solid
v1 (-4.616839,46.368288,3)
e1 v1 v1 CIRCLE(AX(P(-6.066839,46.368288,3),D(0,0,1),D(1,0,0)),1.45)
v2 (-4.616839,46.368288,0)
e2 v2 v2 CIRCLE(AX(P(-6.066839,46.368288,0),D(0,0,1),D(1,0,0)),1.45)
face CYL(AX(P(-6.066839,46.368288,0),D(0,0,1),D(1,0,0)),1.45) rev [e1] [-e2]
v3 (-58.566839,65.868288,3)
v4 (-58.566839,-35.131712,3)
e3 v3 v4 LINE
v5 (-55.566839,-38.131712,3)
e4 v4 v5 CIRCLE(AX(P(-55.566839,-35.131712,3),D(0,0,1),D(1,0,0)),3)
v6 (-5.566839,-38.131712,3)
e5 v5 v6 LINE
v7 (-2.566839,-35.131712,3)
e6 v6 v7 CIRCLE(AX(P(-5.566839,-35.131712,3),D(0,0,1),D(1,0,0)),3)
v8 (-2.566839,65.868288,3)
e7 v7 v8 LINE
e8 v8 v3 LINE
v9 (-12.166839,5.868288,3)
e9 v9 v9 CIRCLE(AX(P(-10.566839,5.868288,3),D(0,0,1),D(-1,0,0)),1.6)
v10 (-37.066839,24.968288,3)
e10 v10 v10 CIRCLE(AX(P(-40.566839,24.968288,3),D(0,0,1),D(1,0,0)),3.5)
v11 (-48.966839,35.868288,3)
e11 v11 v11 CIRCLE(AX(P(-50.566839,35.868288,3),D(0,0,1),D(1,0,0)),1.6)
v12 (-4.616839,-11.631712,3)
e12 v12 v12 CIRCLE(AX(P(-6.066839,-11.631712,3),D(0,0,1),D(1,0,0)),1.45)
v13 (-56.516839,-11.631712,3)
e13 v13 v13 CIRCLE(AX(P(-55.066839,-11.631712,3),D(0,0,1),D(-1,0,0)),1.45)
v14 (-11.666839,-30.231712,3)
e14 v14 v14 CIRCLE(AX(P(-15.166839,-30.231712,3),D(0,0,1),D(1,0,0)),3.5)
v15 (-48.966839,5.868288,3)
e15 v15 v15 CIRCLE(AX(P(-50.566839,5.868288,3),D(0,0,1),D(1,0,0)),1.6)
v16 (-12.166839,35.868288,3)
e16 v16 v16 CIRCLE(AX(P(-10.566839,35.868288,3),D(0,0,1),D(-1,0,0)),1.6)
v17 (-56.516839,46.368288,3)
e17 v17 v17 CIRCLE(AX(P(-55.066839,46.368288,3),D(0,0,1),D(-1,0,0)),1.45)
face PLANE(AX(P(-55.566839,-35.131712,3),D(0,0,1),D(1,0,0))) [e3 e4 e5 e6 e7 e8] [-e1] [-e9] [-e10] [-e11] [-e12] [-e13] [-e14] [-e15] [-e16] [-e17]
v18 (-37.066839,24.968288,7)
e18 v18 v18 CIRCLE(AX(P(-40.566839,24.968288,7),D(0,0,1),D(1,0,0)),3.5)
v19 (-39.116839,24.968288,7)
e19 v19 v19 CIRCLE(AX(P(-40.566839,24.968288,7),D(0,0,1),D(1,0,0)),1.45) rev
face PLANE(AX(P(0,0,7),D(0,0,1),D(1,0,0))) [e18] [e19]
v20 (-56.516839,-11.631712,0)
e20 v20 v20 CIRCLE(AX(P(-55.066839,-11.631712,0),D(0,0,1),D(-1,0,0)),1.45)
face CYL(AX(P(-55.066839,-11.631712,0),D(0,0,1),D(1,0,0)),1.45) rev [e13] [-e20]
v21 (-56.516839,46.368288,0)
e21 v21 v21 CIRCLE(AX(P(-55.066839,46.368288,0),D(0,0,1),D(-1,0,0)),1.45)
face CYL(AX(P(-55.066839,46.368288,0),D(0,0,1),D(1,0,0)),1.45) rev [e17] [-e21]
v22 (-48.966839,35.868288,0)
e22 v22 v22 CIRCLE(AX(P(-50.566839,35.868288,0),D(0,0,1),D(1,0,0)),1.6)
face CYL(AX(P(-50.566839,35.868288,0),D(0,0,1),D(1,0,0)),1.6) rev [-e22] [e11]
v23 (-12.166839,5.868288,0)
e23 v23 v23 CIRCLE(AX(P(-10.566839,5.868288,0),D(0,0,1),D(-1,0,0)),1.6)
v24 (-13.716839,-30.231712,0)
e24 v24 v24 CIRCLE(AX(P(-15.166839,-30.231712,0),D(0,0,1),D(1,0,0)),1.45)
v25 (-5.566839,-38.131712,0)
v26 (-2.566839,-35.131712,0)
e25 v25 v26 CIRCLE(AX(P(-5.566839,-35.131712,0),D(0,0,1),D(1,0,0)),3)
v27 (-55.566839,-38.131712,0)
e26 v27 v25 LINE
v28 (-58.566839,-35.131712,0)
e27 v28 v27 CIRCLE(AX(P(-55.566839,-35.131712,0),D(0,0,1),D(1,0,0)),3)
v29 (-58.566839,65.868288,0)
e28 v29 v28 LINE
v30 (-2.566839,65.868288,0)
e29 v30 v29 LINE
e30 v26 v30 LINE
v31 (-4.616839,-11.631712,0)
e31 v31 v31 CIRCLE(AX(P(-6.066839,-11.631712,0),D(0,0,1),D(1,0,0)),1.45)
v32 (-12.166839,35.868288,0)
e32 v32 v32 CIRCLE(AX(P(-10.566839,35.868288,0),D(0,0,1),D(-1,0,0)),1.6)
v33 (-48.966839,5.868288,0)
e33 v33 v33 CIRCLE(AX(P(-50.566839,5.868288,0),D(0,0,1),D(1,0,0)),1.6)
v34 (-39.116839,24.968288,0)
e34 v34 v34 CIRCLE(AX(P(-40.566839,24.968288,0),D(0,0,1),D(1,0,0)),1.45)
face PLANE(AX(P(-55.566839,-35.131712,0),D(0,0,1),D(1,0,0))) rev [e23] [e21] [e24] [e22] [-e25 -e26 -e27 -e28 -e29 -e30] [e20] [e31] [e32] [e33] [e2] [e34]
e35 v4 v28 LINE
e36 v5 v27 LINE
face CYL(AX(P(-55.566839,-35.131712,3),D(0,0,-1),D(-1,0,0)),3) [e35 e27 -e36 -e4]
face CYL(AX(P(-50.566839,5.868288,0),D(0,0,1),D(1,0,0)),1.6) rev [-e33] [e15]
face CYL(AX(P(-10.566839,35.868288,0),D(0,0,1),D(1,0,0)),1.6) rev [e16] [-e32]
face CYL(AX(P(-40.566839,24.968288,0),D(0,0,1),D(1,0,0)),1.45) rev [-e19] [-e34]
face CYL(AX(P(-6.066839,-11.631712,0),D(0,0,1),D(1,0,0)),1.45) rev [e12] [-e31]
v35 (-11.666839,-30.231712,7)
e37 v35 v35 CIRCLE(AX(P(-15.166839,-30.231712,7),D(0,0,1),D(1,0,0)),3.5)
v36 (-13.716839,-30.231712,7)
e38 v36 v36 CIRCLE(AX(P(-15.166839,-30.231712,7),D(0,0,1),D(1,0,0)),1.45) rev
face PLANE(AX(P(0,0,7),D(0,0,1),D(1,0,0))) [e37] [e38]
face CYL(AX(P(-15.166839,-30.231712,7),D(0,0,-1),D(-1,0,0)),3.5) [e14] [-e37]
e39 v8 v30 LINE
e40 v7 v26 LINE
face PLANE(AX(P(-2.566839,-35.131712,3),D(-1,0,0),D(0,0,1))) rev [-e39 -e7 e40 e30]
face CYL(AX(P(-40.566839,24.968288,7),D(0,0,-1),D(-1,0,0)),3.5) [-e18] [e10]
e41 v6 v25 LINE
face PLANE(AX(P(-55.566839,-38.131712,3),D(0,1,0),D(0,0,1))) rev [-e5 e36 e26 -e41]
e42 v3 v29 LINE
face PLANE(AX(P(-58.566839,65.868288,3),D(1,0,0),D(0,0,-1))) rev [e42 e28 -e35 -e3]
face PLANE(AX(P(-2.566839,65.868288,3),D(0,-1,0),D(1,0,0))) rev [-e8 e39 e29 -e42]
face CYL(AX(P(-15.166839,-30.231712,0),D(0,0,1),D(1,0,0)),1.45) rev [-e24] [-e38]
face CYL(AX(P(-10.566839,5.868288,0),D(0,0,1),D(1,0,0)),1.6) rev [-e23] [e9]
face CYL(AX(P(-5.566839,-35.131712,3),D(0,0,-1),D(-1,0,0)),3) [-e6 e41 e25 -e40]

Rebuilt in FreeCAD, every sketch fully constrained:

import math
import FreeCAD as App
import Part
import Sketcher
from FreeCAD import Vector
Q = App.Units.Quantity

doc = App.newDocument("Part")
params = doc.addObject("Spreadsheet::Sheet", "Params")
for row, (alias, value) in enumerate([
    ("sketch1_radius", "3 mm"),
    ("sketch1_width", "50 mm"),
    ("sketch1_height", "101 mm"),
    ("pad1_length", "3 mm"),
    ("sketch2_diameter", "3.2 mm"),
    ("sketch2_diameter2", "2.9 mm"),
    ("sketch3_diameter", "7 mm"),
    ("sketch3_diameter2", "2.9 mm"),
    ("pad2_length", "4 mm"),
], start=1):
    params.set(f"A{row}", alias)
    params.set(f"B{row}", "=" + value)
    params.setAlias(f"B{row}", alias)

body = doc.addObject("PartDesign::Body", "Body")

# Sketch on XY plane
sketch1 = body.newObject("Sketcher::SketchObject", "Sketch")
sketch1.AttachmentSupport = (doc.getObject("XY_Plane"), [""])
sketch1.MapMode = "FlatFace"
sketch1.addGeometry([
    Part.LineSegment(Vector(-55.6, -38.1, 0), Vector(-5.6, -38.1, 0)),  # 0
    Part.ArcOfCircle(Part.Circle(Vector(-5.6, -35.1, 0), Vector(0, 0, 1), 3), math.radians(-90), math.radians(0)),  # 1
    Part.LineSegment(Vector(-2.6, -35.1, 0), Vector(-2.6, 65.9, 0)),  # 2
    Part.LineSegment(Vector(-2.6, 65.9, 0), Vector(-58.6, 65.9, 0)),  # 3
    Part.LineSegment(Vector(-58.6, 65.9, 0), Vector(-58.6, -35.1, 0)),  # 4
    Part.ArcOfCircle(Part.Circle(Vector(-55.6, -35.1, 0), Vector(0, 0, 1), 3), math.radians(180), math.radians(270)),  # 5
], False)
sketch1.addConstraint([
    Sketcher.Constraint("Tangent", 0, 2, 1, 1),
    Sketcher.Constraint("Tangent", 1, 2, 2, 1),
    Sketcher.Constraint("Coincident", 2, 2, 3, 1),
    Sketcher.Constraint("Coincident", 3, 2, 4, 1),
    Sketcher.Constraint("Tangent", 4, 2, 5, 1),
    Sketcher.Constraint("Tangent", 5, 2, 0, 1),
    Sketcher.Constraint("Horizontal", 0),
    Sketcher.Constraint("Vertical", 2),
    Sketcher.Constraint("Horizontal", 3),
    Sketcher.Constraint("Vertical", 4),
    Sketcher.Constraint("Equal", 1, 5),
    Sketcher.Constraint("Radius", 1, Q("3 mm")),
    Sketcher.Constraint("DistanceX", 0, 1, 0, 2, Q("50 mm")),
    Sketcher.Constraint("DistanceY", 2, 1, 2, 2, Q("101 mm")),
    Sketcher.Constraint("DistanceX", 1, 3, -1, 1, Q("5.566839 mm")),
    Sketcher.Constraint("DistanceY", 1, 3, -1, 1, Q("35.131712 mm")),
])
sketch1.setExpression("Constraints[11]", "Params.sketch1_radius")
sketch1.setExpression("Constraints[12]", "Params.sketch1_width")
sketch1.setExpression("Constraints[13]", "Params.sketch1_height")
pad1 = body.newObject("PartDesign::Pad", "Pad")
pad1.Profile = sketch1
pad1.setExpression("Length", "Params.pad1_length")

# Sketch on XY plane
sketch2 = body.newObject("Sketcher::SketchObject", "Sketch001")
sketch2.AttachmentSupport = (doc.getObject("XY_Plane"), [""])
sketch2.MapMode = "FlatFace"
sketch2.AttachmentOffset = App.Placement(Vector(0, 0, 3), App.Rotation())
sketch2.addGeometry([
    Part.Circle(Vector(-50.6, 35.9, 0), Vector(0, 0, 1), 1.6),  # 0
    Part.Circle(Vector(-50.6, 5.9, 0), Vector(0, 0, 1), 1.6),  # 1
    Part.Circle(Vector(-10.6, 5.9, 0), Vector(0, 0, 1), 1.6),  # 2
    Part.Circle(Vector(-10.6, 35.9, 0), Vector(0, 0, 1), 1.6),  # 3
    Part.Circle(Vector(-40.6, 25, 0), Vector(0, 0, 1), 1.4),  # 4
    Part.Circle(Vector(-15.2, -30.2, 0), Vector(0, 0, 1), 1.4),  # 5
    Part.Circle(Vector(-6.1, 46.4, 0), Vector(0, 0, 1), 1.4),  # 6
    Part.Circle(Vector(-6.1, -11.6, 0), Vector(0, 0, 1), 1.4),  # 7
    Part.Circle(Vector(-55.1, -11.6, 0), Vector(0, 0, 1), 1.4),  # 8
    Part.Circle(Vector(-55.1, 46.4, 0), Vector(0, 0, 1), 1.4),  # 9
], False)
sketch2.addConstraint([
    Sketcher.Constraint("Equal", 0, 1),
    Sketcher.Constraint("Equal", 1, 2),
    Sketcher.Constraint("Equal", 2, 3),
    Sketcher.Constraint("Equal", 4, 5),
    Sketcher.Constraint("Equal", 5, 6),
    Sketcher.Constraint("Equal", 6, 7),
    Sketcher.Constraint("Equal", 7, 8),
    Sketcher.Constraint("Equal", 8, 9),
    Sketcher.Constraint("Horizontal", 1, 3, 2, 3),
    Sketcher.Constraint("Horizontal", 0, 3, 3, 3),
    Sketcher.Constraint("Horizontal", 7, 3, 8, 3),
    Sketcher.Constraint("Horizontal", 6, 3, 9, 3),
    Sketcher.Constraint("Vertical", 0, 3, 1, 3),
    Sketcher.Constraint("Vertical", 2, 3, 3, 3),
    Sketcher.Constraint("Vertical", 6, 3, 7, 3),
    Sketcher.Constraint("Vertical", 8, 3, 9, 3),
    Sketcher.Constraint("Diameter", 0, Q("3.2 mm")),
    Sketcher.Constraint("Diameter", 4, Q("2.9 mm")),
    Sketcher.Constraint("DistanceY", 1, 3, 0, 3, Q("30 mm")),
    Sketcher.Constraint("DistanceX", 1, 3, 2, 3, Q("40 mm")),
    Sketcher.Constraint("DistanceX", 0, 3, 4, 3, Q("10 mm")),
    Sketcher.Constraint("DistanceX", 9, 3, 6, 3, Q("49 mm")),
    Sketcher.Constraint("DistanceY", 4, 3, 0, 3, Q("10.9 mm")),
    Sketcher.Constraint("DistanceX", 5, 3, 2, 3, Q("4.6 mm")),
    Sketcher.Constraint("DistanceY", 5, 3, 2, 3, Q("36.1 mm")),
    Sketcher.Constraint("DistanceX", 3, 3, 6, 3, Q("4.5 mm")),
    Sketcher.Constraint("DistanceY", 3, 3, 6, 3, Q("10.5 mm")),
    Sketcher.Constraint("DistanceY", 7, 3, 2, 3, Q("17.5 mm")),
    Sketcher.Constraint("DistanceX", 0, 3, -1, 1, Q("50.566839 mm")),
    Sketcher.Constraint("DistanceY", -1, 1, 0, 3, Q("35.868288 mm")),
])
sketch2.setExpression("Constraints[16]", "Params.sketch2_diameter")
sketch2.setExpression("Constraints[17]", "Params.sketch2_diameter2")
pocket1 = body.newObject("PartDesign::Pocket", "Pocket")
pocket1.Profile = sketch2
pocket1.Type = "ThroughAll"

# Sketch on XY plane
sketch3 = body.newObject("Sketcher::SketchObject", "Sketch002")
sketch3.AttachmentSupport = (doc.getObject("XY_Plane"), [""])
sketch3.MapMode = "FlatFace"
sketch3.AttachmentOffset = App.Placement(Vector(0, 0, 3), App.Rotation())
sketch3.addGeometry([
    Part.Circle(Vector(-40.6, 25, 0), Vector(0, 0, 1), 3.5),
    Part.Circle(Vector(-40.6, 25, 0), Vector(0, 0, 1), 1.4),
    Part.Circle(Vector(-15.2, -30.2, 0), Vector(0, 0, 1), 3.5),
    Part.Circle(Vector(-15.2, -30.2, 0), Vector(0, 0, 1), 1.4),
], False)
sketch3.addConstraint([
    Sketcher.Constraint("Coincident", 1, 3, 0, 3),
    Sketcher.Constraint("Coincident", 3, 3, 2, 3),
    Sketcher.Constraint("Equal", 0, 2),
    Sketcher.Constraint("Equal", 1, 3),
    Sketcher.Constraint("Diameter", 0, Q("7 mm")),
    Sketcher.Constraint("Diameter", 1, Q("2.9 mm")),
    Sketcher.Constraint("DistanceX", 0, 3, 2, 3, Q("25.4 mm")),
    Sketcher.Constraint("DistanceY", 2, 3, 0, 3, Q("55.2 mm")),
    Sketcher.Constraint("DistanceX", 0, 3, -1, 1, Q("40.566839 mm")),
    Sketcher.Constraint("DistanceY", -1, 1, 0, 3, Q("24.968288 mm")),
])
sketch3.setExpression("Constraints[4]", "Params.sketch3_diameter")
sketch3.setExpression("Constraints[5]", "Params.sketch3_diameter2")
pad2 = body.newObject("PartDesign::Pad", "Pad001")
pad2.Profile = sketch3
pad2.setExpression("Length", "Params.pad2_length")

doc.recompute()
